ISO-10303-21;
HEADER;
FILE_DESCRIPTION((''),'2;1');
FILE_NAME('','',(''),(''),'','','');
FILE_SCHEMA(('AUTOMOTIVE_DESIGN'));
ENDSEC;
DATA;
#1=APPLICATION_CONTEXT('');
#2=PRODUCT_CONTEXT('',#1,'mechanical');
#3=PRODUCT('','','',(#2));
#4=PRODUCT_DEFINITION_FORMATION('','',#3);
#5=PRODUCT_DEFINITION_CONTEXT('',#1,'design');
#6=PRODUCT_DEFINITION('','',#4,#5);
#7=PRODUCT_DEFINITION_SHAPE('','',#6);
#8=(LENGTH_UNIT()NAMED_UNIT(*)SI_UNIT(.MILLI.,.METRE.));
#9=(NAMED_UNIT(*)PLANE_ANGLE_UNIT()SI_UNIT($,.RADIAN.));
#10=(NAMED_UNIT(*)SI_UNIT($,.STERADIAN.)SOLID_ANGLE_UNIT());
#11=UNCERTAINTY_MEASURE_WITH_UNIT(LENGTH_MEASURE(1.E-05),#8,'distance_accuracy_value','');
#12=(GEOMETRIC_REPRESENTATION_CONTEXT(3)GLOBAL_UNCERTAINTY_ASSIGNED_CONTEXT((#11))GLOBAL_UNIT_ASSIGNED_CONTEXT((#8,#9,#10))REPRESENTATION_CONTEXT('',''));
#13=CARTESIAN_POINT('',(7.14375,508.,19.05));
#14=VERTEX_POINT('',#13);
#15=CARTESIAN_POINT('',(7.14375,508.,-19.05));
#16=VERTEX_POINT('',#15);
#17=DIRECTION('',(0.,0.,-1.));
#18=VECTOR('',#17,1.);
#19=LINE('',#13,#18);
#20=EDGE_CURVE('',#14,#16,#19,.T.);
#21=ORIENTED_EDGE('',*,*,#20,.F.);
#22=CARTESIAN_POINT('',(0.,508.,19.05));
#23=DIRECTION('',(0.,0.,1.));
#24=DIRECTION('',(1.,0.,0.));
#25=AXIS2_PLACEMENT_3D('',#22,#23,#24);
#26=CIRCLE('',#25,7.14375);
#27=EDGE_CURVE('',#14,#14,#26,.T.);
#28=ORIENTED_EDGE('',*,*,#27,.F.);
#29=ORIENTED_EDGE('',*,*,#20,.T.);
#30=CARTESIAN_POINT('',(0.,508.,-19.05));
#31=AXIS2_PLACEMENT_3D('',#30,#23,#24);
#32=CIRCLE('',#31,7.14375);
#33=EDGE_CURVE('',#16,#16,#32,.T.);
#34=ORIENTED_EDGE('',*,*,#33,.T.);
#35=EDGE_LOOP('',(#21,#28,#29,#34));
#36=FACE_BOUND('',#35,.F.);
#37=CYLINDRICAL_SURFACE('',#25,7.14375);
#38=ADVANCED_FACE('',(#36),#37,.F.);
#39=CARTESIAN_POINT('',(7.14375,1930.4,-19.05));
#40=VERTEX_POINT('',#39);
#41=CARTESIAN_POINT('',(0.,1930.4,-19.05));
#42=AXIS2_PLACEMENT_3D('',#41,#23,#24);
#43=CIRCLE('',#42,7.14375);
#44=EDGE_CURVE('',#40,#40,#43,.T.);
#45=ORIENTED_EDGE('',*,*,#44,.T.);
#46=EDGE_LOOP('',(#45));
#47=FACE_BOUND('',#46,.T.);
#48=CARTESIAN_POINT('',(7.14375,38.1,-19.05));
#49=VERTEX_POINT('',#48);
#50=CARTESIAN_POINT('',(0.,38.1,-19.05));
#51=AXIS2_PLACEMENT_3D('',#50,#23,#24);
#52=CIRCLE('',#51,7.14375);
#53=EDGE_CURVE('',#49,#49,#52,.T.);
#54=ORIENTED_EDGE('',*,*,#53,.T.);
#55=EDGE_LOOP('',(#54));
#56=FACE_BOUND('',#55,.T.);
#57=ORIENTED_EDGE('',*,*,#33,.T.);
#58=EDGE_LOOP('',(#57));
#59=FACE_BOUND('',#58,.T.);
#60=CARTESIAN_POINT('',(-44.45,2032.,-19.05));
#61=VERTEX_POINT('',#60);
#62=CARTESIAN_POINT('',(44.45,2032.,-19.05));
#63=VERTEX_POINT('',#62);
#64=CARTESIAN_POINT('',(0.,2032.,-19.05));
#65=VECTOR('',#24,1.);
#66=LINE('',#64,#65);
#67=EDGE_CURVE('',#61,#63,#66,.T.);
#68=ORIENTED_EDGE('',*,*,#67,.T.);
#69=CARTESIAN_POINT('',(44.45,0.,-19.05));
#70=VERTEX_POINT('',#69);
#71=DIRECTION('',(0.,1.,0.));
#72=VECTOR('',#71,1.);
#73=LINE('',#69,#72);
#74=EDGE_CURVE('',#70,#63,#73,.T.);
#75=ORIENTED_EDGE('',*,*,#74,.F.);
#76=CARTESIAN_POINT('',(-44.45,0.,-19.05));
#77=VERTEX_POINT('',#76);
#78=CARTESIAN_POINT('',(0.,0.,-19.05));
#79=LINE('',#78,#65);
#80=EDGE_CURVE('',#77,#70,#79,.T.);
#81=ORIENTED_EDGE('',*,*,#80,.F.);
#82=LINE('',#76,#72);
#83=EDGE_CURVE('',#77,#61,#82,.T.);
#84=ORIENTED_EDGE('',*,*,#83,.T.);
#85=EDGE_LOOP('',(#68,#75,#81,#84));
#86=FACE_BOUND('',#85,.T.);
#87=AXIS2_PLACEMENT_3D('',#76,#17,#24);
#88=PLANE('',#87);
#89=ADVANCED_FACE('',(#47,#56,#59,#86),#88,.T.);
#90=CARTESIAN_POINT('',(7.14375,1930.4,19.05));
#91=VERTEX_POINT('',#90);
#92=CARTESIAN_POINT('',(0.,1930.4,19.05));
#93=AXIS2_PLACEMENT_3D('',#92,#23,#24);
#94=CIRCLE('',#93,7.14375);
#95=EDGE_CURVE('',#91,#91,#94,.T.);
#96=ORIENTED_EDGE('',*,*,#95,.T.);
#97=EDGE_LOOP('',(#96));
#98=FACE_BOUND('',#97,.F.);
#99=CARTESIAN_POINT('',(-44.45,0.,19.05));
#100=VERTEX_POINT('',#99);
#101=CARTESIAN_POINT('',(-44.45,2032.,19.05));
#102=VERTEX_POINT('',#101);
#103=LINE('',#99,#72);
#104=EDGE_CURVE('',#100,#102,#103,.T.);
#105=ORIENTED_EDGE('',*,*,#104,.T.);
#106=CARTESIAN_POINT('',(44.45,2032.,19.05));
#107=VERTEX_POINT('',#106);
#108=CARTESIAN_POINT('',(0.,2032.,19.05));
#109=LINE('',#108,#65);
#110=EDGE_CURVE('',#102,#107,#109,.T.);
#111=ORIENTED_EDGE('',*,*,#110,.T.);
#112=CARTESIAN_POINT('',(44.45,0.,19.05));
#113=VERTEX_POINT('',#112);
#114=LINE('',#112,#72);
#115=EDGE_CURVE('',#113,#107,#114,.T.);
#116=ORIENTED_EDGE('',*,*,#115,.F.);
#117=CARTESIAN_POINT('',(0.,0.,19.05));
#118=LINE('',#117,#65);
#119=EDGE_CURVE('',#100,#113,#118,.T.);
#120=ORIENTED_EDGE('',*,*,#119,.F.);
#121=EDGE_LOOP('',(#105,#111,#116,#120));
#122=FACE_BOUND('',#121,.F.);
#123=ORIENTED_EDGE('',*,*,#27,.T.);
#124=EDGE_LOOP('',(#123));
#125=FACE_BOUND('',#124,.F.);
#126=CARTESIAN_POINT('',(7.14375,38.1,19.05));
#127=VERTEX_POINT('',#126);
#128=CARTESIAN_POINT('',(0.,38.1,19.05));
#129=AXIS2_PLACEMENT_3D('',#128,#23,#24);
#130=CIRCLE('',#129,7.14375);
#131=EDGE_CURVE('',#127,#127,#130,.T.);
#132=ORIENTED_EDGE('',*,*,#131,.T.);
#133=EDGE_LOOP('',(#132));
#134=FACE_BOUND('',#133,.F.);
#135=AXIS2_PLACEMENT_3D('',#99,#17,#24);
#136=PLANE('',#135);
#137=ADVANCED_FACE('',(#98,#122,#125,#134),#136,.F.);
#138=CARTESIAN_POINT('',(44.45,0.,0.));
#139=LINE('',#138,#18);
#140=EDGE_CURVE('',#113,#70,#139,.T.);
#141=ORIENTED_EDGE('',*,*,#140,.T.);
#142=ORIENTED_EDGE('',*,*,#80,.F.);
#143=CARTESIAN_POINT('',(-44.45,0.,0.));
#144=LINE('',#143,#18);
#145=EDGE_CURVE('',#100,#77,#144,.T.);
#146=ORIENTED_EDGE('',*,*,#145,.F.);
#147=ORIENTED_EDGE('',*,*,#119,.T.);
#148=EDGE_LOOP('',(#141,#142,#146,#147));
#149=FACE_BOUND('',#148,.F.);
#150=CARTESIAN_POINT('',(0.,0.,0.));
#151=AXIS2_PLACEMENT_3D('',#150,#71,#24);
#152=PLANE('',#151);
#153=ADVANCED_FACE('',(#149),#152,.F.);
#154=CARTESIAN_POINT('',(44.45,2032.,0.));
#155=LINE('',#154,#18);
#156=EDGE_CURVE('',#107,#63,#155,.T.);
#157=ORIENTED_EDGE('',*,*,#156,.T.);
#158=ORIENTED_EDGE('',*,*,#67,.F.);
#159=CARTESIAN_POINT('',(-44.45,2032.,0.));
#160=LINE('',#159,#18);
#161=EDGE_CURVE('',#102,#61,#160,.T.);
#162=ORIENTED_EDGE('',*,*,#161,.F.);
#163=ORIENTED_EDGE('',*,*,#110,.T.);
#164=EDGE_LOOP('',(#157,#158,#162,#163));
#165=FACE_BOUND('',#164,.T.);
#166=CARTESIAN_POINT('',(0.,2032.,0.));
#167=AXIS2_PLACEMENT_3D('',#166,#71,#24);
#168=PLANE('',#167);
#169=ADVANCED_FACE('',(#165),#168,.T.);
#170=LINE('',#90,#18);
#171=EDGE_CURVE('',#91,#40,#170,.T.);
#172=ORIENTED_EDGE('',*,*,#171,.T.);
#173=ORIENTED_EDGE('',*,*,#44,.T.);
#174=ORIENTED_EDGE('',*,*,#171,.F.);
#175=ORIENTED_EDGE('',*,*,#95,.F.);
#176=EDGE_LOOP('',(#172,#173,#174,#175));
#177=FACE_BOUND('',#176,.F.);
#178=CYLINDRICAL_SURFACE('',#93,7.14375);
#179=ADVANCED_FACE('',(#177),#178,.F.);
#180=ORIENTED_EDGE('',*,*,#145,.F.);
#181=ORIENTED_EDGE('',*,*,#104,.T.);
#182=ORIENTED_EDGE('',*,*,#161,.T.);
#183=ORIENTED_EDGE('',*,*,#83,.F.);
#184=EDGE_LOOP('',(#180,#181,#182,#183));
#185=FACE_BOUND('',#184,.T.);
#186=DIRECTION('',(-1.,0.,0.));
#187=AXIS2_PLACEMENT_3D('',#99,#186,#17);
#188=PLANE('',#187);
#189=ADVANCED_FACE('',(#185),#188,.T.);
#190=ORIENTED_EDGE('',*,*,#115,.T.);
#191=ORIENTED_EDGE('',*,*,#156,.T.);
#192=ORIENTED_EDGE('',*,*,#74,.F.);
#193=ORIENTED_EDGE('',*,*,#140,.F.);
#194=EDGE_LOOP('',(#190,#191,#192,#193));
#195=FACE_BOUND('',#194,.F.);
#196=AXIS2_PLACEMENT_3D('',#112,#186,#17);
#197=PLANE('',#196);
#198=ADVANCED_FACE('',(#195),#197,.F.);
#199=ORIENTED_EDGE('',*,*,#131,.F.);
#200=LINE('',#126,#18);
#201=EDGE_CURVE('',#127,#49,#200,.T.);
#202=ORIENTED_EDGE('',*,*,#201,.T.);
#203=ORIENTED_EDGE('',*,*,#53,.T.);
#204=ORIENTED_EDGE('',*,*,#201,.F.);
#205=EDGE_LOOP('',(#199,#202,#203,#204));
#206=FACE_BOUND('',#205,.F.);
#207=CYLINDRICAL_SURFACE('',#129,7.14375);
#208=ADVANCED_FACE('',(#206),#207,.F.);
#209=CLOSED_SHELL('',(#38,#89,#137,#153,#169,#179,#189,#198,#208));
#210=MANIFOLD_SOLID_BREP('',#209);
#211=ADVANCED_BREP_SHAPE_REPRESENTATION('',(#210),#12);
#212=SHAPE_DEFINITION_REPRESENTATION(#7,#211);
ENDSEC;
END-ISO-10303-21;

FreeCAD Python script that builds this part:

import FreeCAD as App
import Part
import Sketcher
from FreeCAD import Vector
Q = App.Units.Quantity


def add_polygon(sketch, points):
    """Adds a closed chain of lines whose ends are joined by coincident constraints."""
    first, n = sketch.GeometryCount, len(points)
    for a, b in zip(points, points[1:] + points[:1]):
        sketch.addGeometry(Part.LineSegment(App.Vector(*a, 0), App.Vector(*b, 0)), False)
    for i in range(n):
        sketch.addConstraint(Sketcher.Constraint("Coincident", first + i, 2, first + (i + 1) % n, 1))

doc = App.newDocument("Part")
body = doc.addObject("PartDesign::Body", "Body")

# Sketch on XZ plane
sketch1 = body.newObject("Sketcher::SketchObject", "Sketch")
sketch1.AttachmentSupport = (doc.getObject("XZ_Plane"), [""])
sketch1.MapMode = "FlatFace"
add_polygon(sketch1, [(-44.45, -19.05), (-44.45, 19.05), (44.45, 19.05), (44.45, -19.05)])  # lines 0-3
sketch1.addConstraint([
    Sketcher.Constraint("Vertical", 0),
    Sketcher.Constraint("Horizontal", 1),
    Sketcher.Constraint("Vertical", 2),
    Sketcher.Constraint("Horizontal", 3),
    Sketcher.Constraint("Symmetric", 0, 2, 2, 2, -1, 1),
    Sketcher.Constraint("DistanceX", 1, 1, 1, 2, Q("3.5 in")),
    Sketcher.Constraint("DistanceY", 0, 1, 0, 2, Q("1.5 in")),
])
pad1 = body.newObject("PartDesign::Pad", "Pad")
pad1.Profile = sketch1
pad1.Length = Q("80 in")
pad1.Reversed = True

# Sketch on XY plane
sketch2 = body.newObject("Sketcher::SketchObject", "Sketch001")
sketch2.AttachmentSupport = (doc.getObject("XY_Plane"), [""])
sketch2.MapMode = "FlatFace"
sketch2.AttachmentOffset = App.Placement(Vector(0, 0, 0.75 * 25.4), App.Rotation())
sketch2.addGeometry([
    Part.Circle(Vector(0, 38.1, 0), Vector(0, 0, 1), 7.14375),
    Part.Circle(Vector(0, 508, 0), Vector(0, 0, 1), 7.14375),
    Part.Circle(Vector(0, 1930.4, 0), Vector(0, 0, 1), 7.14375),
], False)
sketch2.addConstraint([
    Sketcher.Constraint("Equal", 0, 1),
    Sketcher.Constraint("Equal", 1, 2),
    Sketcher.Constraint("PointOnObject", 0, 3, -2),
    Sketcher.Constraint("PointOnObject", 1, 3, -2),
    Sketcher.Constraint("PointOnObject", 2, 3, -2),
    Sketcher.Constraint("Diameter", 0, Q("0.5625 in")),
    Sketcher.Constraint("DistanceY", -1, 1, 1, 3, Q("20 in")),
    Sketcher.Constraint("DistanceY", -1, 1, 2, 3, Q("76 in")),
    Sketcher.Constraint("DistanceY", -1, 1, 0, 3, Q("1.5 in")),
])
pocket1 = body.newObject("PartDesign::Pocket", "Pocket")
pocket1.Profile = sketch2
pocket1.Type = "ThroughAll"
pocket1.Midplane = True

doc.recompute()
